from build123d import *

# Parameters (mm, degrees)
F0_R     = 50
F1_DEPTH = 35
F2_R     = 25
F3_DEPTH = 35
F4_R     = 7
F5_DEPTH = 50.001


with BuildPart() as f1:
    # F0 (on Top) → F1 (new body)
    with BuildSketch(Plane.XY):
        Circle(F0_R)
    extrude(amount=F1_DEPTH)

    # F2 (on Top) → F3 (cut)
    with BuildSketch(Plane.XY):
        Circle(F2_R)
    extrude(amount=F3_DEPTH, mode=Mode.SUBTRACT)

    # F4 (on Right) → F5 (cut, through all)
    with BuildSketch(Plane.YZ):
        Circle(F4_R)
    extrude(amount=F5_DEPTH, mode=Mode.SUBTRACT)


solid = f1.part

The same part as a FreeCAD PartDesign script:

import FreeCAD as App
import Part
import Sketcher

V = App.Vector
Q = App.Units.Quantity

doc = App.newDocument("Part")
body = doc.addObject("PartDesign::Body", "Body")

# Sketch on XY plane
sketch1 = body.newObject("Sketcher::SketchObject", "Sketch")
sketch1.AttachmentSupport = (doc.getObject("XY_Plane"), [""])
sketch1.MapMode = "FlatFace"
sketch1.addGeometry(Part.Circle(V(0, 0, 0), V(0, 0, 1), 50), False)
sketch1.addConstraint([
    Sketcher.Constraint("Coincident", 0, 3, -1, 1),
    Sketcher.Constraint("Diameter", 0, Q("100 mm")),
])
pad1 = body.newObject("PartDesign::Pad", "Pad")
pad1.Profile = sketch1
pad1.Length = 35

# Sketch on XY plane
sketch2 = body.newObject("Sketcher::SketchObject", "Sketch001")
sketch2.AttachmentSupport = (doc.getObject("XY_Plane"), [""])
sketch2.MapMode = "FlatFace"
sketch2.addGeometry(Part.Circle(V(0, 0, 0), V(0, 0, 1), 25), False)
sketch2.addConstraint([
    Sketcher.Constraint("Coincident", 0, 3, -1, 1),
    Sketcher.Constraint("Diameter", 0, Q("50 mm")),
])
pocket1 = body.newObject("PartDesign::Pocket", "Pocket")
pocket1.Profile = sketch2
pocket1.Length = 35
pocket1.Reversed = True

# Sketch on YZ plane
sketch3 = body.newObject("Sketcher::SketchObject", "Sketch002")
sketch3.AttachmentSupport = (doc.getObject("YZ_Plane"), [""])
sketch3.MapMode = "FlatFace"
sketch3.addGeometry(Part.Circle(V(0, 0, 0), V(0, 0, 1), 7), False)
sketch3.addConstraint([
    Sketcher.Constraint("Coincident", 0, 3, -1, 1),
    Sketcher.Constraint("Diameter", 0, Q("14 mm")),
])
pocket2 = body.newObject("PartDesign::Pocket", "Pocket001")
pocket2.Profile = sketch3
pocket2.Type = "ThroughAll"
pocket2.Reversed = True

doc.recompute()
